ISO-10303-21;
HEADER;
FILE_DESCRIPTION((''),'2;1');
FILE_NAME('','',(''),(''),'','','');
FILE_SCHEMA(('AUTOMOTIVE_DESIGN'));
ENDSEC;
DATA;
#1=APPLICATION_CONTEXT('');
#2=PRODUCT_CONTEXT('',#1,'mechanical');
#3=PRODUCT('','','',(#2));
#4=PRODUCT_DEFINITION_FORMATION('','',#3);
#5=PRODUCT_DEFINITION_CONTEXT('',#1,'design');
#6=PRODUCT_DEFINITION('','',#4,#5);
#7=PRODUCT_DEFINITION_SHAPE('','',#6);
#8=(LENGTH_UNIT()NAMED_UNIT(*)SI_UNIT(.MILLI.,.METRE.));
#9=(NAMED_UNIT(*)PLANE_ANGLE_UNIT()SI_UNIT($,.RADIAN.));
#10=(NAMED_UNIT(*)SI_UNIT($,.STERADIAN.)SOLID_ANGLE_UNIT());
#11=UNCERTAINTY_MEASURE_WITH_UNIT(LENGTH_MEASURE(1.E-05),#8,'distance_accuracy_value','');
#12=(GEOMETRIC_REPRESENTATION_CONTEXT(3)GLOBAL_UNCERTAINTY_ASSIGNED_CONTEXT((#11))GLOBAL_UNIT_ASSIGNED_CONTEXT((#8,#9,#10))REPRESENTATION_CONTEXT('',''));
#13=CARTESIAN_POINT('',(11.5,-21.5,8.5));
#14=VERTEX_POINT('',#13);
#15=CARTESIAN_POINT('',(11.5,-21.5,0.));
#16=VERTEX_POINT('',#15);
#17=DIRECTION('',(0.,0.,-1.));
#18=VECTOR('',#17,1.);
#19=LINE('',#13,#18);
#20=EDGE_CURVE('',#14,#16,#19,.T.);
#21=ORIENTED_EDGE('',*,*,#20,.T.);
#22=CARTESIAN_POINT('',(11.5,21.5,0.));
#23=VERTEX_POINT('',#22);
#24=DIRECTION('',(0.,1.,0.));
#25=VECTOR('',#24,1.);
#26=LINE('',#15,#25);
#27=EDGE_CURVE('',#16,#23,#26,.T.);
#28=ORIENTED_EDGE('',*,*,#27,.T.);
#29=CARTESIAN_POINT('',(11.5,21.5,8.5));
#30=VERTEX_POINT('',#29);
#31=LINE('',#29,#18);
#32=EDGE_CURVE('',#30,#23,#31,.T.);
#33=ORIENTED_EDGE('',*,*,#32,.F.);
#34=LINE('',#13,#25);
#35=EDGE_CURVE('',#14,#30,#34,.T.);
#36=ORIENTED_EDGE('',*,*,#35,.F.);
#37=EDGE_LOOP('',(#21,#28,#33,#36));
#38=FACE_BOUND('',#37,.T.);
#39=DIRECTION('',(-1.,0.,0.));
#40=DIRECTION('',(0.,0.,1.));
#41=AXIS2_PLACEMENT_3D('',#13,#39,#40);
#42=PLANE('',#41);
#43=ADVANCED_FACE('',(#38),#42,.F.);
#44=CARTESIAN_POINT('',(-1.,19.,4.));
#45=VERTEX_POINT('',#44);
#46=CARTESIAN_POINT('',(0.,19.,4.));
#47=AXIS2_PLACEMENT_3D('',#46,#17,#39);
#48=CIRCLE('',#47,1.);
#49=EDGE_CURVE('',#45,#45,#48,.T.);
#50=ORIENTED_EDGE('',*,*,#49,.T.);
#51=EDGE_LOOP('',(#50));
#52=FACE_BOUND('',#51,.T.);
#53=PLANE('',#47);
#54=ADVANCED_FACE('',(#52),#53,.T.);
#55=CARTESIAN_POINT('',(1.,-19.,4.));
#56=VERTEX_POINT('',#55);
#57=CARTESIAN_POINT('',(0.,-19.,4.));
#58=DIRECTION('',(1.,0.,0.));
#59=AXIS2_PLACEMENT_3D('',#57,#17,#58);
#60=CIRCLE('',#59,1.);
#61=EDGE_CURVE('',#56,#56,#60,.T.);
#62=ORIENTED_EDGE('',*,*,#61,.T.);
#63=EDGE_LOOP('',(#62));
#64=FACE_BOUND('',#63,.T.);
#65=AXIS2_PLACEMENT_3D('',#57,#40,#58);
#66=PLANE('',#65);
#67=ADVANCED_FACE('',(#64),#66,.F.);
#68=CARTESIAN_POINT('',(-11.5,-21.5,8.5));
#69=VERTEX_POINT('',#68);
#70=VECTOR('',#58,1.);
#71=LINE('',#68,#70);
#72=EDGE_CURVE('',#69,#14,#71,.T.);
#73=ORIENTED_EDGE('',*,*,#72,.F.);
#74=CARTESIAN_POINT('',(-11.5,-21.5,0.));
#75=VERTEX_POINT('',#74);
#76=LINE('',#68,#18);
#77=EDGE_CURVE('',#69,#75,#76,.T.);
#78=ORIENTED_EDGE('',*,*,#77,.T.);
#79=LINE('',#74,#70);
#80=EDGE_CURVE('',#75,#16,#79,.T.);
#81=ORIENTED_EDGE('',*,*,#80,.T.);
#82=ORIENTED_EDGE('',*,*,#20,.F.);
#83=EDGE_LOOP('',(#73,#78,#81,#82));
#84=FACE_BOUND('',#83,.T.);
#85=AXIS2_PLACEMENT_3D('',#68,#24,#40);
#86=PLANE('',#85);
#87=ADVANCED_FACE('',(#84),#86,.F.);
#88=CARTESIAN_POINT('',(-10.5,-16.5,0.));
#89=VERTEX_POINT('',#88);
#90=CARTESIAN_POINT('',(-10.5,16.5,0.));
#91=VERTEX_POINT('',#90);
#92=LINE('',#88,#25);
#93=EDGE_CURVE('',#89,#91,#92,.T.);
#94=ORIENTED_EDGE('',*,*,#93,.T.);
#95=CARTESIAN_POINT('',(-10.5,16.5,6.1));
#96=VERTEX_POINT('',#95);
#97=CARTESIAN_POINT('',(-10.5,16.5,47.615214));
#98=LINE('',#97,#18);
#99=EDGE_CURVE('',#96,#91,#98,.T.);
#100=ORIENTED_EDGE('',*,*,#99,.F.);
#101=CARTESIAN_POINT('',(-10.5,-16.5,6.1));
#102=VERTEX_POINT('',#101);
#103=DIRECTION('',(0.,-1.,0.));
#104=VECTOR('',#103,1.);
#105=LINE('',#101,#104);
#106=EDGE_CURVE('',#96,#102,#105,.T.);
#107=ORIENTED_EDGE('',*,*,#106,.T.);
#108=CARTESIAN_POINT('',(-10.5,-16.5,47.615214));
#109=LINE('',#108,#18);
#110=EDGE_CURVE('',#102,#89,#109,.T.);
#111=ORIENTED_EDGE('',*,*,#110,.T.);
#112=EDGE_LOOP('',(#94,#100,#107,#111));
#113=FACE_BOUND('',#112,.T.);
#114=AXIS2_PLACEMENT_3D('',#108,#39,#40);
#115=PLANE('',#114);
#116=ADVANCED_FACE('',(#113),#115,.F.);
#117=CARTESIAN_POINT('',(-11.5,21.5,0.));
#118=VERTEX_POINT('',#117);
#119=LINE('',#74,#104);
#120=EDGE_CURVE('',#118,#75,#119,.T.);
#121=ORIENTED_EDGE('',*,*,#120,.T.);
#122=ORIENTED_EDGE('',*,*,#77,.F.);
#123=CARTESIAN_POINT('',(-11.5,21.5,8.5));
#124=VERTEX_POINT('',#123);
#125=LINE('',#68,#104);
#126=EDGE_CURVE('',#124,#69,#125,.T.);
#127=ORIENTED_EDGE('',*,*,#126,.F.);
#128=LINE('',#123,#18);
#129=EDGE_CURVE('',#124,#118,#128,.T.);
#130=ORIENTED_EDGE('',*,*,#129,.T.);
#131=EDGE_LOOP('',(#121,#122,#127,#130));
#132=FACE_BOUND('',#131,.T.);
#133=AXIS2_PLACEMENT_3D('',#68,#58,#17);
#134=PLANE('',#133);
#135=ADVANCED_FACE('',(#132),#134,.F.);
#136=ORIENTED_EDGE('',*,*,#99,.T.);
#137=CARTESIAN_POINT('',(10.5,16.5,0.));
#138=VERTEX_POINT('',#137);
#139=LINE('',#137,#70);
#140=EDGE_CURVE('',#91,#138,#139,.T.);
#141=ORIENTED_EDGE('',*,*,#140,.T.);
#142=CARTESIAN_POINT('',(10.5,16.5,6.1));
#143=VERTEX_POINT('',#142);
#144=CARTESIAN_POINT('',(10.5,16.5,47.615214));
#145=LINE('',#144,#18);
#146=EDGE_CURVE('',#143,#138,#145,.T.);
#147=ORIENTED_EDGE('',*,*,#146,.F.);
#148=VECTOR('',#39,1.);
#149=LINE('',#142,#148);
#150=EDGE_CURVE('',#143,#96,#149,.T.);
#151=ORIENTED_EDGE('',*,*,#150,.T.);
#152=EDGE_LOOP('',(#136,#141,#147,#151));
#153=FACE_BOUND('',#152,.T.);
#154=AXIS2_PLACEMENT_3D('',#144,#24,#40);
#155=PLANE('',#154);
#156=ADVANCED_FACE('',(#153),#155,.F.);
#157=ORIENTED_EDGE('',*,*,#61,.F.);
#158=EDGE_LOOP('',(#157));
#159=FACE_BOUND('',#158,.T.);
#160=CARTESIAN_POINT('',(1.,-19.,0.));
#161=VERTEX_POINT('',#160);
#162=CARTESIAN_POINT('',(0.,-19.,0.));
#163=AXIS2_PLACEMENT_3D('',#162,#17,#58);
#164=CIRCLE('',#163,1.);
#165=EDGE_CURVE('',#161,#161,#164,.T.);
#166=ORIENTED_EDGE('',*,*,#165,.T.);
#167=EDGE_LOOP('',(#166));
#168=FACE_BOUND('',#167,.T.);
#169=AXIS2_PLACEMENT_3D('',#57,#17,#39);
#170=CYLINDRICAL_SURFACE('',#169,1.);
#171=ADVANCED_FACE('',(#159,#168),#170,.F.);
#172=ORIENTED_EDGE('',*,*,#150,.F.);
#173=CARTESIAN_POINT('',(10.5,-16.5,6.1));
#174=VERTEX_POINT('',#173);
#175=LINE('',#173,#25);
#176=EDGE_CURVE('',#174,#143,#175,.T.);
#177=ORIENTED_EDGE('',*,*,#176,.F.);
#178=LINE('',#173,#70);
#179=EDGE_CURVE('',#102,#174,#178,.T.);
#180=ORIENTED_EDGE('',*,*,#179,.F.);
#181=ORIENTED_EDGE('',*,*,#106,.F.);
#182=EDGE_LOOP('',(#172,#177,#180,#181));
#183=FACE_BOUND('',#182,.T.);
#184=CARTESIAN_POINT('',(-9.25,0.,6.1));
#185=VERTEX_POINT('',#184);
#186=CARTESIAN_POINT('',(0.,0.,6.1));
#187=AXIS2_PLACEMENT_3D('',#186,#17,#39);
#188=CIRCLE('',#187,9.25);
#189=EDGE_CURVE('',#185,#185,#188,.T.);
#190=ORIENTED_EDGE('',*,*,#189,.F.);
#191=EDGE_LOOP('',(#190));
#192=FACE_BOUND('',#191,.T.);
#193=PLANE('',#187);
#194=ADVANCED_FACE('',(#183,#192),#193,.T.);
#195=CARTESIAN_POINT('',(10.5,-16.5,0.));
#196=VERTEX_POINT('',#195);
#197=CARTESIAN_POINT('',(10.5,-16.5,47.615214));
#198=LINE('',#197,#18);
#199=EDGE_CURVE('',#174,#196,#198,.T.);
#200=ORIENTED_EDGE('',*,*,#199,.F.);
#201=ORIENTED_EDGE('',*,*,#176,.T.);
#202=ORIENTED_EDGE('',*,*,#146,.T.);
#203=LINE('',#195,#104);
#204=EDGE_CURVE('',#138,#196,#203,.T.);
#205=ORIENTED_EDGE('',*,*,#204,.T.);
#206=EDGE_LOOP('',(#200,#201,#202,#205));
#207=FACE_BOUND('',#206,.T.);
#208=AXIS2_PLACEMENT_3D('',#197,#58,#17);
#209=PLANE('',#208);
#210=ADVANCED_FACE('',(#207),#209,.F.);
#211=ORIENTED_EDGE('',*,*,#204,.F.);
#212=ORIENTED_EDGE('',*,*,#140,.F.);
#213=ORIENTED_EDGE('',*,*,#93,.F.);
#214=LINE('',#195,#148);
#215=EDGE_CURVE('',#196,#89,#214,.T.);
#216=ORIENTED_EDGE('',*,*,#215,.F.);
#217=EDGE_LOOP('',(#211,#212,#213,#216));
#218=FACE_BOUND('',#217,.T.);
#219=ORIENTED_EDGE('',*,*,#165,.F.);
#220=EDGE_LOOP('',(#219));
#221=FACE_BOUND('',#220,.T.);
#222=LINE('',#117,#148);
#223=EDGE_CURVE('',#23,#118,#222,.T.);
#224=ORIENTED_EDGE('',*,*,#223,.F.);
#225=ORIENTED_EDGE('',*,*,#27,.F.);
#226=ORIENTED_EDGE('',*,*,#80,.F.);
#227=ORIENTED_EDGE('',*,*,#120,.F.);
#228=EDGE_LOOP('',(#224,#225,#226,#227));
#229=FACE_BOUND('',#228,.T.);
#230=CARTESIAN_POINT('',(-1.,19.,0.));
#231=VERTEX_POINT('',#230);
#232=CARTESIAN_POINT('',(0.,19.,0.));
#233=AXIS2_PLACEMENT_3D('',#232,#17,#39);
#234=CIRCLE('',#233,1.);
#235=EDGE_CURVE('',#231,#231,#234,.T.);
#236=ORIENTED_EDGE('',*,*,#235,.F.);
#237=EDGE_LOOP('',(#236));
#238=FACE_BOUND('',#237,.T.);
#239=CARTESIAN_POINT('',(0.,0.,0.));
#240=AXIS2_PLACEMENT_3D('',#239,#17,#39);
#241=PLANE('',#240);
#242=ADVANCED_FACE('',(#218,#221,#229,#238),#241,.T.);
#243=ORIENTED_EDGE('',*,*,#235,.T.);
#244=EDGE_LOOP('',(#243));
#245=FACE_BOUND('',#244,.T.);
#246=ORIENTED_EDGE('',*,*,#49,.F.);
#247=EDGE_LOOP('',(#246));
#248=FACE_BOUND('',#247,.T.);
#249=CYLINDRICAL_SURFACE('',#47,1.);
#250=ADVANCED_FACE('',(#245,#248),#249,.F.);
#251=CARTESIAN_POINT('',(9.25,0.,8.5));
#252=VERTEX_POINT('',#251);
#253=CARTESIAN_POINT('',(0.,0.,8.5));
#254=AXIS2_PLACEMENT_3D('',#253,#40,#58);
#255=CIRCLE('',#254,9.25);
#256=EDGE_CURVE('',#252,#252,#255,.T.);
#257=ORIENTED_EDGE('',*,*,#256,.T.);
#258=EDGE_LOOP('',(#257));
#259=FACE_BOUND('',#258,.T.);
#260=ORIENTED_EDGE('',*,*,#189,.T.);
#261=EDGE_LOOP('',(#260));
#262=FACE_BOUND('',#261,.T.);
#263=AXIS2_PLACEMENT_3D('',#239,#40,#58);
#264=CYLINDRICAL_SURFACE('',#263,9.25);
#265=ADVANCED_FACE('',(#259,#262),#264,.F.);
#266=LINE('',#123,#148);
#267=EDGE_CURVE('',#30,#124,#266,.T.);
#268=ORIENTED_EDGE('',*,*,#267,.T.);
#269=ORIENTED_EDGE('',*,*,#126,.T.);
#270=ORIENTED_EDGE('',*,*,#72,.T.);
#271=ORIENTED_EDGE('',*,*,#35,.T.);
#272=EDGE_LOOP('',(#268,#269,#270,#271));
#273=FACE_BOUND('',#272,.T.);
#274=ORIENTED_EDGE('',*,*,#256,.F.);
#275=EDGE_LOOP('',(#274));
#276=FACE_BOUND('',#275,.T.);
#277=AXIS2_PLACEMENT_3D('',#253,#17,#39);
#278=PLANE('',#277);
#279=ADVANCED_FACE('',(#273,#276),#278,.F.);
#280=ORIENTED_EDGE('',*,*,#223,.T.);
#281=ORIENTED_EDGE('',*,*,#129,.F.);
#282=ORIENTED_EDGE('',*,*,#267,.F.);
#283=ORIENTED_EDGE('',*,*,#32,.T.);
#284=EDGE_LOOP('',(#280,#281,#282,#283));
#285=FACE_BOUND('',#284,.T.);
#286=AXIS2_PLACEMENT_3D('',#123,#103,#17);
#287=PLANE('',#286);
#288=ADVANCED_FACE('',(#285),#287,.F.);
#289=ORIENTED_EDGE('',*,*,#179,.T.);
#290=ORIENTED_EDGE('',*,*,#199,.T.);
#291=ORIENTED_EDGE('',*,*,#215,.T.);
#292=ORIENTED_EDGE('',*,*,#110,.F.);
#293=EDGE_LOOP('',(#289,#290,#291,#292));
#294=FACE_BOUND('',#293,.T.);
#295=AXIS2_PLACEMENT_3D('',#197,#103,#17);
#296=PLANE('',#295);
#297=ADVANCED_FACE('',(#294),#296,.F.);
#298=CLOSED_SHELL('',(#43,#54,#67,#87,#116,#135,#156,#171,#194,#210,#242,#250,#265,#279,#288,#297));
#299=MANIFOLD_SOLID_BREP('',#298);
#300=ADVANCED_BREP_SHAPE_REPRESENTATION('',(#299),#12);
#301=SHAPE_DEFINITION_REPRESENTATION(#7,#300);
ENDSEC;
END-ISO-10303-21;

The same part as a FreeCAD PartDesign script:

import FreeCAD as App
import Part
import Sketcher
Q = App.Units.Quantity


def add_polygon(sketch, points):
    """Adds a closed chain of lines whose ends are joined by coincident constraints."""
    first, n = sketch.GeometryCount, len(points)
    for a, b in zip(points, points[1:] + points[:1]):
        sketch.addGeometry(Part.LineSegment(App.Vector(*a, 0), App.Vector(*b, 0)), False)
    for i in range(n):
        sketch.addConstraint(Sketcher.Constraint("Coincident", first + i, 2, first + (i + 1) % n, 1))

doc = App.newDocument("Part")
params = doc.addObject("Spreadsheet::Sheet", "Params")
for row, (alias, value) in enumerate([
    ("sketch1_width", "23 mm"),
    ("sketch1_height", "43 mm"),
    ("pad1_length", "8.5 mm"),
    ("sketch2_width", "21 mm"),
    ("sketch2_height", "33 mm"),
    ("pocket1_length", "6.1 mm"),
    ("sketch3_diameter", "18.5 mm"),
    ("sketch4_diameter", "2 mm"),
    ("pocket3_length", "4 mm"),
], start=1):
    params.set(f"A{row}", alias)
    params.set(f"B{row}", "=" + value)
    params.setAlias(f"B{row}", alias)

body = doc.addObject("PartDesign::Body", "Body")

# Sketch on XY plane
sketch1 = doc.addObject("Sketcher::SketchObject", "Sketch")
body.addObject(sketch1)
sketch1.AttachmentSupport = (doc.XY_Plane, [""])
sketch1.MapMode = "FlatFace"
add_polygon(sketch1, [(-12, 22), (-12, -22), (12, -22), (12, 22)])  # lines 0-3
sketch1.addConstraint(Sketcher.Constraint("Vertical", 0))
sketch1.addConstraint(Sketcher.Constraint("Horizontal", 1))
sketch1.addConstraint(Sketcher.Constraint("Vertical", 2))
sketch1.addConstraint(Sketcher.Constraint("Horizontal", 3))
sketch1.addConstraint(Sketcher.Constraint("Symmetric", 0, 2, 2, 2, -1, 1))
sketch1.addConstraint(Sketcher.Constraint("DistanceX", 1, 1, 1, 2, Q("23 mm")))
sketch1.addConstraint(Sketcher.Constraint("DistanceY", 0, 2, 0, 1, Q("43 mm")))
sketch1.setExpression("Constraints[9]", "Params.sketch1_width")
sketch1.setExpression("Constraints[10]", "Params.sketch1_height")
pad1 = doc.addObject("PartDesign::Pad", "Pad")
body.addObject(pad1)
pad1.Profile = sketch1
pad1.setExpression("Length", "Params.pad1_length")

# Sketch on XY plane
sketch2 = doc.addObject("Sketcher::SketchObject", "Sketch001")
body.addObject(sketch2)
sketch2.AttachmentSupport = (doc.XY_Plane, [""])
sketch2.MapMode = "FlatFace"
add_polygon(sketch2, [(10, 16), (10, -16), (-10, -16), (-10, 16)])  # lines 0-3
sketch2.addConstraint(Sketcher.Constraint("Vertical", 0))
sketch2.addConstraint(Sketcher.Constraint("Horizontal", 1))
sketch2.addConstraint(Sketcher.Constraint("Vertical", 2))
sketch2.addConstraint(Sketcher.Constraint("Horizontal", 3))
sketch2.addConstraint(Sketcher.Constraint("Symmetric", 0, 2, 2, 2, -1, 1))
sketch2.addConstraint(Sketcher.Constraint("DistanceX", 1, 2, 1, 1, Q("21 mm")))
sketch2.addConstraint(Sketcher.Constraint("DistanceY", 0, 2, 0, 1, Q("33 mm")))
sketch2.setExpression("Constraints[9]", "Params.sketch2_width")
sketch2.setExpression("Constraints[10]", "Params.sketch2_height")
pocket1 = doc.addObject("PartDesign::Pocket", "Pocket")
body.addObject(pocket1)
pocket1.Profile = sketch2
pocket1.setExpression("Length", "Params.pocket1_length")
pocket1.Reversed = True

# Sketch on XY plane
sketch3 = doc.addObject("Sketcher::SketchObject", "Sketch002")
body.addObject(sketch3)
sketch3.AttachmentSupport = (doc.XY_Plane, [""])
sketch3.MapMode = "FlatFace"
sketch3.AttachmentOffset = App.Placement(App.Vector(0, 0, 8.5), App.Rotation())
sketch3.addGeometry(Part.Circle(App.Vector(0, 0, 0), App.Vector(0, 0, 1), 9), False)
sketch3.addConstraint(Sketcher.Constraint("Coincident", 0, 3, -1, 1))
sketch3.addConstraint(Sketcher.Constraint("Diameter", 0, Q("18.5 mm")))
sketch3.setExpression("Constraints[1]", "Params.sketch3_diameter")
pocket2 = doc.addObject("PartDesign::Pocket", "Pocket001")
body.addObject(pocket2)
pocket2.Profile = sketch3
pocket2.Type = "ThroughAll"

# Sketch on XY plane
sketch4 = doc.addObject("Sketcher::SketchObject", "Sketch003")
body.addObject(sketch4)
sketch4.AttachmentSupport = (doc.XY_Plane, [""])
sketch4.MapMode = "FlatFace"
sketch4.addGeometry(Part.Circle(App.Vector(0, 19, 0), App.Vector(0, 0, 1), 1), False)
sketch4.addGeometry(Part.Circle(App.Vector(0, -19, 0), App.Vector(0, 0, 1), 1), False)
sketch4.addConstraint(Sketcher.Constraint("Equal", 0, 1))
sketch4.addConstraint(Sketcher.Constraint("Symmetric", 0, 3, 1, 3, -1, 1))
sketch4.addConstraint(Sketcher.Constraint("PointOnObject", 0, 3, -2))
sketch4.addConstraint(Sketcher.Constraint("Diameter", 0, Q("2 mm")))
sketch4.addConstraint(Sketcher.Constraint("DistanceY", -1, 1, 0, 3, Q("19 mm")))
sketch4.setExpression("Constraints[3]", "Params.sketch4_diameter")
pocket3 = doc.addObject("PartDesign::Pocket", "Pocket002")
body.addObject(pocket3)
pocket3.Profile = sketch4
pocket3.setExpression("Length", "Params.pocket3_length")
pocket3.Reversed = True

doc.recompute()
